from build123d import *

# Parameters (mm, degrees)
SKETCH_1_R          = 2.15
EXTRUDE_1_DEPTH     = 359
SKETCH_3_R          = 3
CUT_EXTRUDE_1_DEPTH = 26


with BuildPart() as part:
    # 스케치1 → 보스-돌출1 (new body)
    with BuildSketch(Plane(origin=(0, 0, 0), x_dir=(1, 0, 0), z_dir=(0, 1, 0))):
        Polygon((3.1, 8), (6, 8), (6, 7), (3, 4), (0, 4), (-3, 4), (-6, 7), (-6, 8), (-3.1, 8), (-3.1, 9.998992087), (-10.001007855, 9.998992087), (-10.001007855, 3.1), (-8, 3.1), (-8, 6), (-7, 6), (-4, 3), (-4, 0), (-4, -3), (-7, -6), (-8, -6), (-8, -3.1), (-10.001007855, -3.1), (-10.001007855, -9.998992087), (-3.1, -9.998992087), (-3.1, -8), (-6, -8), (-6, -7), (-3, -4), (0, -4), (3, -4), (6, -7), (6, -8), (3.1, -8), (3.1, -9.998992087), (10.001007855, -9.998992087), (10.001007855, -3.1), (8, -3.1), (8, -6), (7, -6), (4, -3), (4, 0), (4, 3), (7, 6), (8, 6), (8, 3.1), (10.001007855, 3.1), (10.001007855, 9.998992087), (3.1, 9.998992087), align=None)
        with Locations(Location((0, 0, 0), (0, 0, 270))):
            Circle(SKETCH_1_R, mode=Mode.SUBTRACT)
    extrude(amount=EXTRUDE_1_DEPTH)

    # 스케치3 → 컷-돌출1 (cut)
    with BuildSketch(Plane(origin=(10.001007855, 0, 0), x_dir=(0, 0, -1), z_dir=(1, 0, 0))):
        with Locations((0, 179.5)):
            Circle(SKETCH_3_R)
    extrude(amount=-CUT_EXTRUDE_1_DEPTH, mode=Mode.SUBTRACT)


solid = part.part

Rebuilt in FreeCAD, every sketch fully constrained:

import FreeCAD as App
import Part
import Sketcher
from FreeCAD import Vector

doc = App.newDocument("Part")
body = doc.addObject("PartDesign::Body", "Body")

# Sketch on XZ plane
sketch1 = body.newObject("Sketcher::SketchObject", "Sketch")
sketch1.AttachmentSupport = (doc.getObject("XZ_Plane"), [""])
sketch1.MapMode = "FlatFace"
sketch1.addGeometry(Part.LineSegment(Vector(3.1, -8, 0), Vector(6, -8, 0)), False)
sketch1.addGeometry(Part.LineSegment(Vector(6, -8, 0), Vector(6, -7, 0)), False)
sketch1.addGeometry(Part.LineSegment(Vector(6, -7, 0), Vector(3, -4, 0)), False)
sketch1.addGeometry(Part.LineSegment(Vector(3, -4, 0), Vector(-3, -4, 0)), False)
sketch1.addGeometry(Part.LineSegment(Vector(-3, -4, 0), Vector(-6, -7, 0)), False)
sketch1.addGeometry(Part.LineSegment(Vector(-6, -7, 0), Vector(-6, -8, 0)), False)
sketch1.addGeometry(Part.LineSegment(Vector(-6, -8, 0), Vector(-3.1, -8, 0)), False)
sketch1.addGeometry(Part.LineSegment(Vector(-3.1, -8, 0), Vector(-3.1, -9.998992, 0)), False)
sketch1.addGeometry(Part.LineSegment(Vector(-3.1, -9.998992, 0), Vector(-10.001008, -9.998992, 0)), False)
sketch1.addGeometry(Part.LineSegment(Vector(-10.001008, -9.998992, 0), Vector(-10.001008, -3.1, 0)), False)
sketch1.addGeometry(Part.LineSegment(Vector(-10.001008, -3.1, 0), Vector(-8, -3.1, 0)), False)
sketch1.addGeometry(Part.LineSegment(Vector(-8, -3.1, 0), Vector(-8, -6, 0)), False)
sketch1.addGeometry(Part.LineSegment(Vector(-8, -6, 0), Vector(-7, -6, 0)), False)
sketch1.addGeometry(Part.LineSegment(Vector(-7, -6, 0), Vector(-4, -3, 0)), False)
sketch1.addGeometry(Part.LineSegment(Vector(-4, -3, 0), Vector(-4, 3, 0)), False)
sketch1.addGeometry(Part.LineSegment(Vector(-4, 3, 0), Vector(-7, 6, 0)), False)
sketch1.addGeometry(Part.LineSegment(Vector(-7, 6, 0), Vector(-8, 6, 0)), False)
sketch1.addGeometry(Part.LineSegment(Vector(-8, 6, 0), Vector(-8, 3.1, 0)), False)
sketch1.addGeometry(Part.LineSegment(Vector(-8, 3.1, 0), Vector(-10.001008, 3.1, 0)), False)
sketch1.addGeometry(Part.LineSegment(Vector(-10.001008, 3.1, 0), Vector(-10.001008, 9.998992, 0)), False)
sketch1.addGeometry(Part.LineSegment(Vector(-10.001008, 9.998992, 0), Vector(-3.1, 9.998992, 0)), False)
sketch1.addGeometry(Part.LineSegment(Vector(-3.1, 9.998992, 0), Vector(-3.1, 8, 0)), False)
sketch1.addGeometry(Part.LineSegment(Vector(-3.1, 8, 0), Vector(-6, 8, 0)), False)
sketch1.addGeometry(Part.LineSegment(Vector(-6, 8, 0), Vector(-6, 7, 0)), False)
sketch1.addGeometry(Part.LineSegment(Vector(-6, 7, 0), Vector(-3, 4, 0)), False)
sketch1.addGeometry(Part.LineSegment(Vector(-3, 4, 0), Vector(3, 4, 0)), False)
sketch1.addGeometry(Part.LineSegment(Vector(3, 4, 0), Vector(6, 7, 0)), False)
sketch1.addGeometry(Part.LineSegment(Vector(6, 7, 0), Vector(6, 8, 0)), False)
sketch1.addGeometry(Part.LineSegment(Vector(6, 8, 0), Vector(3.1, 8, 0)), False)
sketch1.addGeometry(Part.LineSegment(Vector(3.1, 8, 0), Vector(3.1, 9.998992, 0)), False)
sketch1.addGeometry(Part.LineSegment(Vector(3.1, 9.998992, 0), Vector(10.001008, 9.998992, 0)), False)
sketch1.addGeometry(Part.LineSegment(Vector(10.001008, 9.998992, 0), Vector(10.001008, 3.1, 0)), False)
sketch1.addGeometry(Part.LineSegment(Vector(10.001008, 3.1, 0), Vector(8, 3.1, 0)), False)
sketch1.addGeometry(Part.LineSegment(Vector(8, 3.1, 0), Vector(8, 6, 0)), False)
sketch1.addGeometry(Part.LineSegment(Vector(8, 6, 0), Vector(7, 6, 0)), False)
sketch1.addGeometry(Part.LineSegment(Vector(7, 6, 0), Vector(4, 3, 0)), False)
sketch1.addGeometry(Part.LineSegment(Vector(4, 3, 0), Vector(4, -3, 0)), False)
sketch1.addGeometry(Part.LineSegment(Vector(4, -3, 0), Vector(7, -6, 0)), False)
sketch1.addGeometry(Part.LineSegment(Vector(7, -6, 0), Vector(8, -6, 0)), False)
sketch1.addGeometry(Part.LineSegment(Vector(8, -6, 0), Vector(8, -3.1, 0)), False)
sketch1.addGeometry(Part.LineSegment(Vector(8, -3.1, 0), Vector(10.001008, -3.1, 0)), False)
sketch1.addGeometry(Part.LineSegment(Vector(10.001008, -3.1, 0), Vector(10.001008, -9.998992, 0)), False)
sketch1.addGeometry(Part.LineSegment(Vector(10.001008, -9.998992, 0), Vector(3.1, -9.998992, 0)), False)
sketch1.addGeometry(Part.LineSegment(Vector(3.1, -9.998992, 0), Vector(3.1, -8, 0)), False)
sketch1.addGeometry(Part.Circle(Vector(0, 0, 0), Vector(0, 0, 1), 2.15), False)
sketch1.addConstraint(Sketcher.Constraint("Coincident", 0, 2, 1, 1))
sketch1.addConstraint(Sketcher.Constraint("Coincident", 1, 2, 2, 1))
sketch1.addConstraint(Sketcher.Constraint("Coincident", 2, 2, 3, 1))
sketch1.addConstraint(Sketcher.Constraint("Coincident", 3, 2, 4, 1))
sketch1.addConstraint(Sketcher.Constraint("Coincident", 4, 2, 5, 1))
sketch1.addConstraint(Sketcher.Constraint("Coincident", 5, 2, 6, 1))
sketch1.addConstraint(Sketcher.Constraint("Coincident", 6, 2, 7, 1))
sketch1.addConstraint(Sketcher.Constraint("Coincident", 7, 2, 8, 1))
sketch1.addConstraint(Sketcher.Constraint("Coincident", 8, 2, 9, 1))
sketch1.addConstraint(Sketcher.Constraint("Coincident", 9, 2, 10, 1))
sketch1.addConstraint(Sketcher.Constraint("Coincident", 10, 2, 11, 1))
sketch1.addConstraint(Sketcher.Constraint("Coincident", 11, 2, 12, 1))
sketch1.addConstraint(Sketcher.Constraint("Coincident", 12, 2, 13, 1))
sketch1.addConstraint(Sketcher.Constraint("Coincident", 13, 2, 14, 1))
sketch1.addConstraint(Sketcher.Constraint("Coincident", 14, 2, 15, 1))
sketch1.addConstraint(Sketcher.Constraint("Coincident", 15, 2, 16, 1))
sketch1.addConstraint(Sketcher.Constraint("Coincident", 16, 2, 17, 1))
sketch1.addConstraint(Sketcher.Constraint("Coincident", 17, 2, 18, 1))
sketch1.addConstraint(Sketcher.Constraint("Coincident", 18, 2, 19, 1))
sketch1.addConstraint(Sketcher.Constraint("Coincident", 19, 2, 20, 1))
sketch1.addConstraint(Sketcher.Constraint("Coincident", 20, 2, 21, 1))
sketch1.addConstraint(Sketcher.Constraint("Coincident", 21, 2, 22, 1))
sketch1.addConstraint(Sketcher.Constraint("Coincident", 22, 2, 23, 1))
sketch1.addConstraint(Sketcher.Constraint("Coincident", 23, 2, 24, 1))
sketch1.addConstraint(Sketcher.Constraint("Coincident", 24, 2, 25, 1))
sketch1.addConstraint(Sketcher.Constraint("Coincident", 25, 2, 26, 1))
sketch1.addConstraint(Sketcher.Constraint("Coincident", 26, 2, 27, 1))
sketch1.addConstraint(Sketcher.Constraint("Coincident", 27, 2, 28, 1))
sketch1.addConstraint(Sketcher.Constraint("Coincident", 28, 2, 29, 1))
sketch1.addConstraint(Sketcher.Constraint("Coincident", 29, 2, 30, 1))
sketch1.addConstraint(Sketcher.Constraint("Coincident", 30, 2, 31, 1))
sketch1.addConstraint(Sketcher.Constraint("Coincident", 31, 2, 32, 1))
sketch1.addConstraint(Sketcher.Constraint("Coincident", 32, 2, 33, 1))
sketch1.addConstraint(Sketcher.Constraint("Coincident", 33, 2, 34, 1))
sketch1.addConstraint(Sketcher.Constraint("Coincident", 34, 2, 35, 1))
sketch1.addConstraint(Sketcher.Constraint("Coincident", 35, 2, 36, 1))
sketch1.addConstraint(Sketcher.Constraint("Coincident", 36, 2, 37, 1))
sketch1.addConstraint(Sketcher.Constraint("Coincident", 37, 2, 38, 1))
sketch1.addConstraint(Sketcher.Constraint("Coincident", 38, 2, 39, 1))
sketch1.addConstraint(Sketcher.Constraint("Coincident", 39, 2, 40, 1))
sketch1.addConstraint(Sketcher.Constraint("Coincident", 40, 2, 41, 1))
sketch1.addConstraint(Sketcher.Constraint("Coincident", 41, 2, 42, 1))
sketch1.addConstraint(Sketcher.Constraint("Coincident", 42, 2, 43, 1))
sketch1.addConstraint(Sketcher.Constraint("Coincident", 43, 2, 0, 1))
sketch1.addConstraint(Sketcher.Constraint("Horizontal", 0))
sketch1.addConstraint(Sketcher.Constraint("Vertical", 1))
sketch1.addConstraint(Sketcher.Constraint("Horizontal", 3))
sketch1.addConstraint(Sketcher.Constraint("Vertical", 5))
sketch1.addConstraint(Sketcher.Constraint("Horizontal", 6))
sketch1.addConstraint(Sketcher.Constraint("Vertical", 7))
sketch1.addConstraint(Sketcher.Constraint("Horizontal", 8))
sketch1.addConstraint(Sketcher.Constraint("Vertical", 9))
sketch1.addConstraint(Sketcher.Constraint("Horizontal", 10))
sketch1.addConstraint(Sketcher.Constraint("Vertical", 11))
sketch1.addConstraint(Sketcher.Constraint("Horizontal", 12))
sketch1.addConstraint(Sketcher.Constraint("Vertical", 14))
sketch1.addConstraint(Sketcher.Constraint("Horizontal", 16))
sketch1.addConstraint(Sketcher.Constraint("Vertical", 17))
sketch1.addConstraint(Sketcher.Constraint("Horizontal", 18))
sketch1.addConstraint(Sketcher.Constraint("Vertical", 19))
sketch1.addConstraint(Sketcher.Constraint("Horizontal", 20))
sketch1.addConstraint(Sketcher.Constraint("Vertical", 21))
sketch1.addConstraint(Sketcher.Constraint("Horizontal", 22))
sketch1.addConstraint(Sketcher.Constraint("Vertical", 23))
sketch1.addConstraint(Sketcher.Constraint("Horizontal", 25))
sketch1.addConstraint(Sketcher.Constraint("Vertical", 27))
sketch1.addConstraint(Sketcher.Constraint("Horizontal", 28))
sketch1.addConstraint(Sketcher.Constraint("Vertical", 29))
sketch1.addConstraint(Sketcher.Constraint("Horizontal", 30))
sketch1.addConstraint(Sketcher.Constraint("Vertical", 31))
sketch1.addConstraint(Sketcher.Constraint("Horizontal", 32))
sketch1.addConstraint(Sketcher.Constraint("Vertical", 33))
sketch1.addConstraint(Sketcher.Constraint("Horizontal", 34))
sketch1.addConstraint(Sketcher.Constraint("Vertical", 36))
sketch1.addConstraint(Sketcher.Constraint("Horizontal", 38))
sketch1.addConstraint(Sketcher.Constraint("Vertical", 39))
sketch1.addConstraint(Sketcher.Constraint("Horizontal", 40))
sketch1.addConstraint(Sketcher.Constraint("Vertical", 41))
sketch1.addConstraint(Sketcher.Constraint("Horizontal", 42))
sketch1.addConstraint(Sketcher.Constraint("Vertical", 43))
sketch1.addConstraint(Sketcher.Constraint("Coincident", 44, 3, -1, 1))
sketch1.addConstraint(Sketcher.Constraint("Symmetric", 0, 2, 22, 2, -1, 1))
sketch1.addConstraint(Sketcher.Constraint("Symmetric", 2, 2, 24, 2, -1, 1))
sketch1.addConstraint(Sketcher.Constraint("Symmetric", 4, 2, 26, 2, -1, 1))
sketch1.addConstraint(Sketcher.Constraint("Symmetric", 6, 2, 28, 2, -1, 1))
sketch1.addConstraint(Sketcher.Constraint("Symmetric", 8, 2, 30, 2, -1, 1))
sketch1.addConstraint(Sketcher.Constraint("Symmetric", 10, 2, 32, 2, -1, 1))
sketch1.addConstraint(Sketcher.Constraint("Symmetric", 12, 2, 34, 2, -1, 1))
sketch1.addConstraint(Sketcher.Constraint("Symmetric", 13, 2, 35, 2, -1, 1))
sketch1.addConstraint(Sketcher.Constraint("Symmetric", 15, 2, 37, 2, -1, 1))
sketch1.addConstraint(Sketcher.Constraint("Symmetric", 17, 2, 39, 2, -1, 1))
sketch1.addConstraint(Sketcher.Constraint("Symmetric", 19, 2, 41, 2, -1, 1))
sketch1.addConstraint(Sketcher.Constraint("Symmetric", 1, 2, 4, 2, -2))
sketch1.addConstraint(Sketcher.Constraint("Symmetric", 21, 2, 28, 2, -2))
sketch1.addConstraint(Sketcher.Constraint("Symmetric", 19, 2, 30, 2, -2))
sketch1.addConstraint(Sketcher.Constraint("Symmetric", 17, 2, 32, 2, -2))
sketch1.addConstraint(Sketcher.Constraint("Symmetric", 15, 2, 34, 2, -2))
sketch1.addConstraint(Sketcher.Constraint("Perpendicular", 2, 4))
sketch1.addConstraint(Sketcher.Constraint("Parallel", 4, 13))
sketch1.addConstraint(Sketcher.Constraint("Perpendicular", 13, 15))
sketch1.addConstraint(Sketcher.Constraint("Parallel", 15, 24))
sketch1.addConstraint(Sketcher.Constraint("Perpendicular", 24, 26))
sketch1.addConstraint(Sketcher.Constraint("Perpendicular", 35, 37))
sketch1.addConstraint(Sketcher.Constraint("Horizontal", 14, 2, 35, 2))
sketch1.addConstraint(Sketcher.Constraint("Vertical", 29, 2, 42, 2))
sketch1.addConstraint(Sketcher.Constraint("Equal", 38, 1))
sketch1.addConstraint(Sketcher.Constraint("Equal", 28, 11))
sketch1.addConstraint(Sketcher.Constraint("Equal", 25, 14))
sketch1.addConstraint(Sketcher.Constraint("Equal", 4, 13))
sketch1.addConstraint(Sketcher.Constraint("Diameter", 44, 4.3))
sketch1.addConstraint(Sketcher.Constraint("DistanceX", 3, 2, 3, 1, 6.0))
sketch1.addConstraint(Sketcher.Constraint("DistanceX", 12, 1, 12, 2, 1.0))
sketch1.addConstraint(Sketcher.Constraint("DistanceX", 0, 1, 0, 2, 2.9))
sketch1.addConstraint(Sketcher.Constraint("DistanceX", -1, 1, 0, 2, 6.0))
sketch1.addConstraint(Sketcher.Constraint("DistanceY", 0, 2, -1, 1, 8.0))
sketch1.addConstraint(Sketcher.Constraint("DistanceX", 10, 2, -1, 1, 8.0))
sketch1.addConstraint(Sketcher.Constraint("DistanceX", 8, 2, 8, 1, 6.901008))
sketch1.addConstraint(Sketcher.Constraint("DistanceY", 7, 2, 7, 1, 1.998992))
pad1 = body.newObject("PartDesign::Pad", "Pad")
pad1.Profile = sketch1
pad1.Length = 359
pad1.Reversed = True

# Sketch on YZ plane
sketch2 = body.newObject("Sketcher::SketchObject", "Sketch001")
sketch2.AttachmentSupport = (doc.getObject("YZ_Plane"), [""])
sketch2.MapMode = "FlatFace"
sketch2.AttachmentOffset = App.Placement(Vector(0, 0, 10.001008), App.Rotation())
sketch2.addGeometry(Part.Circle(Vector(179.5, 0, 0), Vector(0, 0, 1), 3), False)
sketch2.addConstraint(Sketcher.Constraint("PointOnObject", 0, 3, -1))
sketch2.addConstraint(Sketcher.Constraint("Diameter", 0, 6.0))
sketch2.addConstraint(Sketcher.Constraint("DistanceX", -1, 1, 0, 3, 179.5))
pocket1 = body.newObject("PartDesign::Pocket", "Pocket")
pocket1.Profile = sketch2
pocket1.Length = 26

doc.recompute()
